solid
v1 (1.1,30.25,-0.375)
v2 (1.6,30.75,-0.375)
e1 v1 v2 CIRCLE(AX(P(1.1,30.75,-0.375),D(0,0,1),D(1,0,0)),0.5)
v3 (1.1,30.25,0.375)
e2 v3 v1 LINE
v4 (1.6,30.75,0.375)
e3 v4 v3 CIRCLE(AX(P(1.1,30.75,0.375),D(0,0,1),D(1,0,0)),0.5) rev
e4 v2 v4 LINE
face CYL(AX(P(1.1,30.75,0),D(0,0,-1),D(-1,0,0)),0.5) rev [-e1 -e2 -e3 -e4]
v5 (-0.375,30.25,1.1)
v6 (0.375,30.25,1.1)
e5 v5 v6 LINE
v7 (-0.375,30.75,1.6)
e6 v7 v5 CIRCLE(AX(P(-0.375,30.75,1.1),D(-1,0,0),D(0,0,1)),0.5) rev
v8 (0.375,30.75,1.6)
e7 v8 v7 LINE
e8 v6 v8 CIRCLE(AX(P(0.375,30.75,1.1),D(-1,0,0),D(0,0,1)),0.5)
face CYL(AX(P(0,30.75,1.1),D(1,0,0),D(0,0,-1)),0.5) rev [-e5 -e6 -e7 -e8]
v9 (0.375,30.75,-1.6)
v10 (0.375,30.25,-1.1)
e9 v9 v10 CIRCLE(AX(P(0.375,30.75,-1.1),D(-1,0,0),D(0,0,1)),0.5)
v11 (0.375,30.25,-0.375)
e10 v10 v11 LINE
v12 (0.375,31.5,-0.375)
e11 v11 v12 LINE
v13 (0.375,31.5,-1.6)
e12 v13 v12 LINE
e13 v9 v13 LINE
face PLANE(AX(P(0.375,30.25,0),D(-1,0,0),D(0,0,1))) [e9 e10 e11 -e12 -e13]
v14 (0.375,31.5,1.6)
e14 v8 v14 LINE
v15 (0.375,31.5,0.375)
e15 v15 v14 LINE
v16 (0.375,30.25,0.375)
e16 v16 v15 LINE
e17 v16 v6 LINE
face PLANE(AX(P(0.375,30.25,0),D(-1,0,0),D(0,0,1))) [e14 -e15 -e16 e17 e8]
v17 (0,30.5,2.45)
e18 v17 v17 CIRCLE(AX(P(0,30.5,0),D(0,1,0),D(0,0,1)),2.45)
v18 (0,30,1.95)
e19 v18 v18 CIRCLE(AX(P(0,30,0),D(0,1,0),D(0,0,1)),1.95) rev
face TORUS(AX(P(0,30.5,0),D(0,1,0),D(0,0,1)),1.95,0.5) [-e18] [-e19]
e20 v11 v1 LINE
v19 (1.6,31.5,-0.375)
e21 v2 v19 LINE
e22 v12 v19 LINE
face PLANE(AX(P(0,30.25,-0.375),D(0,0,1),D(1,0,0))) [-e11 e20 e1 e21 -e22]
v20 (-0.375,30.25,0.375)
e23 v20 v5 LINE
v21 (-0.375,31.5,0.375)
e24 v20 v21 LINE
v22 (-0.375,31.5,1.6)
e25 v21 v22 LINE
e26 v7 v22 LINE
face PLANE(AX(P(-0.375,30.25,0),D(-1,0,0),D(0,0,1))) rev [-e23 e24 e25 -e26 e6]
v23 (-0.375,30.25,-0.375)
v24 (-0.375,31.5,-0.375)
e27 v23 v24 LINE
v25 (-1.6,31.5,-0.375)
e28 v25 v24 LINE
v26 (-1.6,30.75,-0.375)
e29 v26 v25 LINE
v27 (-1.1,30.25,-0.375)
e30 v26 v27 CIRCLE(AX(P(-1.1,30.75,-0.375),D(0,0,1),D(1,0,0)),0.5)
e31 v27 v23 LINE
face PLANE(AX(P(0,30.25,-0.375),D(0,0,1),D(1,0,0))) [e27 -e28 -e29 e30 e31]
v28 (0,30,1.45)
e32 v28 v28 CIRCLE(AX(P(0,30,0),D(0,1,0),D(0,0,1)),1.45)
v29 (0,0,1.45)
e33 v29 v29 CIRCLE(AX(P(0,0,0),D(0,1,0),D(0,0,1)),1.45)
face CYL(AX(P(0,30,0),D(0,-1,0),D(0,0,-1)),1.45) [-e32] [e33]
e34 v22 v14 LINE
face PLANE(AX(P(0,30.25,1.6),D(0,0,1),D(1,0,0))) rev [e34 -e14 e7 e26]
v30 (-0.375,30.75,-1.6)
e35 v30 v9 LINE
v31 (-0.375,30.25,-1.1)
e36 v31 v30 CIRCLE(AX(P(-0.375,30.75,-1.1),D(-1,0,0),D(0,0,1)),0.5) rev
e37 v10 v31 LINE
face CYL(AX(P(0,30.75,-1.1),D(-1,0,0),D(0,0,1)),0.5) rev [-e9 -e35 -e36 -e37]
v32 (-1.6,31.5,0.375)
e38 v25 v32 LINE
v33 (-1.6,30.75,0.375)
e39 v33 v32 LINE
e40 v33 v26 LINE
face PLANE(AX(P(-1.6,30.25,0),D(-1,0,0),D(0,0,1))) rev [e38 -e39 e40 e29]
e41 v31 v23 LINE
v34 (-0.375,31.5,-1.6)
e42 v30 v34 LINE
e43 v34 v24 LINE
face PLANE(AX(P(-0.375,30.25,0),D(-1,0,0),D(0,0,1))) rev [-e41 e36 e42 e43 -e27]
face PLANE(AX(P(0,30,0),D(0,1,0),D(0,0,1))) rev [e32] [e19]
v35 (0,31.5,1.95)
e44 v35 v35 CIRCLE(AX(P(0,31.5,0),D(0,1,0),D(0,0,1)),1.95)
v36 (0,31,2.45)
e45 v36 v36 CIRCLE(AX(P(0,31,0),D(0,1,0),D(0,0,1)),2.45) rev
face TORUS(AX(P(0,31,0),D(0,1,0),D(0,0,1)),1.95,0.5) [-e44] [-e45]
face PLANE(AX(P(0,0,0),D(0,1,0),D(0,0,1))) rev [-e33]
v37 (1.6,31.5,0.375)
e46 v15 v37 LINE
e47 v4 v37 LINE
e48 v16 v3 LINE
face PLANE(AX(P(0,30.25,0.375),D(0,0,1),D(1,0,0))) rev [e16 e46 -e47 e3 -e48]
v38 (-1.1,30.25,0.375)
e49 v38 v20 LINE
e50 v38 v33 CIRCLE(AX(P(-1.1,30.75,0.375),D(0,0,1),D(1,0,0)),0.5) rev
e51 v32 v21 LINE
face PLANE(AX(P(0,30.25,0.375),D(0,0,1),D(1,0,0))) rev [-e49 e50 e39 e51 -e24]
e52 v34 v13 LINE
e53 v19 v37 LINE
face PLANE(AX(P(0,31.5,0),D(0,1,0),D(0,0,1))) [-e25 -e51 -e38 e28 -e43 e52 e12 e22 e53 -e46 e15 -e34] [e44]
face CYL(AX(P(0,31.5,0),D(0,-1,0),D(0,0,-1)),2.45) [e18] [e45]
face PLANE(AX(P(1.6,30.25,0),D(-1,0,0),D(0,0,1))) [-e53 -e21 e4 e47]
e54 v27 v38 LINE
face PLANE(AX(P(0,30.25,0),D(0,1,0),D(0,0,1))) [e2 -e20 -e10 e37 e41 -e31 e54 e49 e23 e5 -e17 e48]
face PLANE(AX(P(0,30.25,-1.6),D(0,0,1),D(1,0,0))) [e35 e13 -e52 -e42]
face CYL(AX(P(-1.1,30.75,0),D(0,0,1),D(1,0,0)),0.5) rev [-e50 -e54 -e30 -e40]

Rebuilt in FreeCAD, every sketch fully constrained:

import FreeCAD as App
import Part
import Sketcher
Q = App.Units.Quantity


def edges_at(feature, points):
    """Names of the edges that pass closest to the given points."""
    edges = feature.Shape.Edges
    near = lambda p: min(range(len(edges)), key=lambda i: edges[i].distToShape(Part.Vertex(*p))[0])
    return sorted({f"Edge{near(p) + 1}" for p in points})

doc = App.newDocument("Part")
body = doc.addObject("PartDesign::Body", "Body")

sketch1 = doc.addObject("Sketcher::SketchObject", "Sketch")
body.addObject(sketch1)
sketch1.AttachmentSupport = (doc.XZ_Plane, [""])
sketch1.MapMode = "FlatFace"
sketch1.addGeometry(Part.Circle(App.Vector(0, 0, 0), App.Vector(0, 0, 1), 1.45), False)
sketch1.addConstraint(Sketcher.Constraint("Coincident", 0, 3, -1, 1))
sketch1.addConstraint(Sketcher.Constraint("Diameter", 0, Q("2.9 mm")))
pad1 = doc.addObject("PartDesign::Pad", "Pad")
body.addObject(pad1)
pad1.Profile = sketch1
pad1.Length = 30
pad1.Reversed = True

sketch2 = doc.addObject("Sketcher::SketchObject", "Sketch001")
body.addObject(sketch2)
sketch2.AttachmentSupport = (doc.XZ_Plane, [""])
sketch2.MapMode = "FlatFace"
sketch2.AttachmentOffset = App.Placement(App.Vector(0, 0, -30), App.Rotation())
sketch2.addGeometry(Part.Circle(App.Vector(0, 0, 0), App.Vector(0, 0, 1), 2.45), False)
sketch2.addConstraint(Sketcher.Constraint("Coincident", 0, 3, -1, 1))
sketch2.addConstraint(Sketcher.Constraint("Diameter", 0, Q("4.9 mm")))
pad2 = doc.addObject("PartDesign::Pad", "Pad001")
body.addObject(pad2)
pad2.Profile = sketch2
pad2.Length = 1.5
pad2.Reversed = True
doc.recompute()

fillet = doc.addObject("PartDesign::Fillet", "Fillet")
body.addObject(fillet)
fillet.Base = (pad2, edges_at(pad2, [(0, 30, -2.45), (0, 31.5, -2.45)]))
fillet.Radius = 0.5

sketch3 = doc.addObject("Sketcher::SketchObject", "Sketch002")
body.addObject(sketch3)
sketch3.AttachmentSupport = (doc.XZ_Plane, [""])
sketch3.MapMode = "FlatFace"
sketch3.AttachmentOffset = App.Placement(App.Vector(0, 0, -31.5), App.Rotation())
sketch3.addGeometry(Part.LineSegment(App.Vector(-0.375, -1.6, 0), App.Vector(-0.375, -0.375, 0)), False)
sketch3.addGeometry(Part.LineSegment(App.Vector(-0.375, -0.375, 0), App.Vector(-1.6, -0.375, 0)), False)
sketch3.addGeometry(Part.LineSegment(App.Vector(-1.6, -0.375, 0), App.Vector(-1.6, 0.375, 0)), False)
sketch3.addGeometry(Part.LineSegment(App.Vector(-1.6, 0.375, 0), App.Vector(-0.375, 0.375, 0)), False)
sketch3.addGeometry(Part.LineSegment(App.Vector(-0.375, 0.375, 0), App.Vector(-0.375, 1.6, 0)), False)
sketch3.addGeometry(Part.LineSegment(App.Vector(-0.375, 1.6, 0), App.Vector(0.375, 1.6, 0)), False)
sketch3.addGeometry(Part.LineSegment(App.Vector(0.375, 1.6, 0), App.Vector(0.375, 0.375, 0)), False)
sketch3.addGeometry(Part.LineSegment(App.Vector(0.375, 0.375, 0), App.Vector(1.6, 0.375, 0)), False)
sketch3.addGeometry(Part.LineSegment(App.Vector(1.6, 0.375, 0), App.Vector(1.6, -0.375, 0)), False)
sketch3.addGeometry(Part.LineSegment(App.Vector(1.6, -0.375, 0), App.Vector(0.375, -0.375, 0)), False)
sketch3.addGeometry(Part.LineSegment(App.Vector(0.375, -0.375, 0), App.Vector(0.375, -1.6, 0)), False)
sketch3.addGeometry(Part.LineSegment(App.Vector(0.375, -1.6, 0), App.Vector(-0.375, -1.6, 0)), False)
sketch3.addConstraint(Sketcher.Constraint("Coincident", 0, 2, 1, 1))
sketch3.addConstraint(Sketcher.Constraint("Coincident", 1, 2, 2, 1))
sketch3.addConstraint(Sketcher.Constraint("Coincident", 2, 2, 3, 1))
sketch3.addConstraint(Sketcher.Constraint("Coincident", 3, 2, 4, 1))
sketch3.addConstraint(Sketcher.Constraint("Coincident", 4, 2, 5, 1))
sketch3.addConstraint(Sketcher.Constraint("Coincident", 5, 2, 6, 1))
sketch3.addConstraint(Sketcher.Constraint("Coincident", 6, 2, 7, 1))
sketch3.addConstraint(Sketcher.Constraint("Coincident", 7, 2, 8, 1))
sketch3.addConstraint(Sketcher.Constraint("Coincident", 8, 2, 9, 1))
sketch3.addConstraint(Sketcher.Constraint("Coincident", 9, 2, 10, 1))
sketch3.addConstraint(Sketcher.Constraint("Coincident", 10, 2, 11, 1))
sketch3.addConstraint(Sketcher.Constraint("Coincident", 11, 2, 0, 1))
sketch3.addConstraint(Sketcher.Constraint("Vertical", 0))
sketch3.addConstraint(Sketcher.Constraint("Horizontal", 1))
sketch3.addConstraint(Sketcher.Constraint("Vertical", 2))
sketch3.addConstraint(Sketcher.Constraint("Horizontal", 3))
sketch3.addConstraint(Sketcher.Constraint("Vertical", 4))
sketch3.addConstraint(Sketcher.Constraint("Horizontal", 5))
sketch3.addConstraint(Sketcher.Constraint("Vertical", 6))
sketch3.addConstraint(Sketcher.Constraint("Horizontal", 7))
sketch3.addConstraint(Sketcher.Constraint("Vertical", 8))
sketch3.addConstraint(Sketcher.Constraint("Horizontal", 9))
sketch3.addConstraint(Sketcher.Constraint("Vertical", 10))
sketch3.addConstraint(Sketcher.Constraint("Horizontal", 11))
sketch3.addConstraint(Sketcher.Constraint("Symmetric", 0, 2, 6, 2, -1, 1))
sketch3.addConstraint(Sketcher.Constraint("Symmetric", 2, 2, 8, 2, -1, 1))
sketch3.addConstraint(Sketcher.Constraint("Symmetric", 4, 2, 10, 2, -1, 1))
sketch3.addConstraint(Sketcher.Constraint("Symmetric", 3, 2, 6, 2, -2))
sketch3.addConstraint(Sketcher.Constraint("Equal", 9, 0))
sketch3.addConstraint(Sketcher.Constraint("Equal", 11, 2))
sketch3.addConstraint(Sketcher.Constraint("DistanceX", 5, 1, 5, 2, Q("0.75 mm")))
sketch3.addConstraint(Sketcher.Constraint("DistanceX", 1, 2, -1, 1, Q("1.6 mm")))
pocket1 = doc.addObject("PartDesign::Pocket", "Pocket")
body.addObject(pocket1)
pocket1.Profile = sketch3
pocket1.Length = 1.25
pocket1.Reversed = True
doc.recompute()

fillet2 = doc.addObject("PartDesign::Fillet", "Fillet001")
body.addObject(fillet2)
fillet2.Base = (pocket1, edges_at(pocket1, [
    (0, 30.25, 1.6),
    (-1.6, 30.25, 0),
    (0, 30.25, -1.6),
    (1.6, 30.25, 0),
]))
fillet2.Radius = 0.5

doc.recompute()
